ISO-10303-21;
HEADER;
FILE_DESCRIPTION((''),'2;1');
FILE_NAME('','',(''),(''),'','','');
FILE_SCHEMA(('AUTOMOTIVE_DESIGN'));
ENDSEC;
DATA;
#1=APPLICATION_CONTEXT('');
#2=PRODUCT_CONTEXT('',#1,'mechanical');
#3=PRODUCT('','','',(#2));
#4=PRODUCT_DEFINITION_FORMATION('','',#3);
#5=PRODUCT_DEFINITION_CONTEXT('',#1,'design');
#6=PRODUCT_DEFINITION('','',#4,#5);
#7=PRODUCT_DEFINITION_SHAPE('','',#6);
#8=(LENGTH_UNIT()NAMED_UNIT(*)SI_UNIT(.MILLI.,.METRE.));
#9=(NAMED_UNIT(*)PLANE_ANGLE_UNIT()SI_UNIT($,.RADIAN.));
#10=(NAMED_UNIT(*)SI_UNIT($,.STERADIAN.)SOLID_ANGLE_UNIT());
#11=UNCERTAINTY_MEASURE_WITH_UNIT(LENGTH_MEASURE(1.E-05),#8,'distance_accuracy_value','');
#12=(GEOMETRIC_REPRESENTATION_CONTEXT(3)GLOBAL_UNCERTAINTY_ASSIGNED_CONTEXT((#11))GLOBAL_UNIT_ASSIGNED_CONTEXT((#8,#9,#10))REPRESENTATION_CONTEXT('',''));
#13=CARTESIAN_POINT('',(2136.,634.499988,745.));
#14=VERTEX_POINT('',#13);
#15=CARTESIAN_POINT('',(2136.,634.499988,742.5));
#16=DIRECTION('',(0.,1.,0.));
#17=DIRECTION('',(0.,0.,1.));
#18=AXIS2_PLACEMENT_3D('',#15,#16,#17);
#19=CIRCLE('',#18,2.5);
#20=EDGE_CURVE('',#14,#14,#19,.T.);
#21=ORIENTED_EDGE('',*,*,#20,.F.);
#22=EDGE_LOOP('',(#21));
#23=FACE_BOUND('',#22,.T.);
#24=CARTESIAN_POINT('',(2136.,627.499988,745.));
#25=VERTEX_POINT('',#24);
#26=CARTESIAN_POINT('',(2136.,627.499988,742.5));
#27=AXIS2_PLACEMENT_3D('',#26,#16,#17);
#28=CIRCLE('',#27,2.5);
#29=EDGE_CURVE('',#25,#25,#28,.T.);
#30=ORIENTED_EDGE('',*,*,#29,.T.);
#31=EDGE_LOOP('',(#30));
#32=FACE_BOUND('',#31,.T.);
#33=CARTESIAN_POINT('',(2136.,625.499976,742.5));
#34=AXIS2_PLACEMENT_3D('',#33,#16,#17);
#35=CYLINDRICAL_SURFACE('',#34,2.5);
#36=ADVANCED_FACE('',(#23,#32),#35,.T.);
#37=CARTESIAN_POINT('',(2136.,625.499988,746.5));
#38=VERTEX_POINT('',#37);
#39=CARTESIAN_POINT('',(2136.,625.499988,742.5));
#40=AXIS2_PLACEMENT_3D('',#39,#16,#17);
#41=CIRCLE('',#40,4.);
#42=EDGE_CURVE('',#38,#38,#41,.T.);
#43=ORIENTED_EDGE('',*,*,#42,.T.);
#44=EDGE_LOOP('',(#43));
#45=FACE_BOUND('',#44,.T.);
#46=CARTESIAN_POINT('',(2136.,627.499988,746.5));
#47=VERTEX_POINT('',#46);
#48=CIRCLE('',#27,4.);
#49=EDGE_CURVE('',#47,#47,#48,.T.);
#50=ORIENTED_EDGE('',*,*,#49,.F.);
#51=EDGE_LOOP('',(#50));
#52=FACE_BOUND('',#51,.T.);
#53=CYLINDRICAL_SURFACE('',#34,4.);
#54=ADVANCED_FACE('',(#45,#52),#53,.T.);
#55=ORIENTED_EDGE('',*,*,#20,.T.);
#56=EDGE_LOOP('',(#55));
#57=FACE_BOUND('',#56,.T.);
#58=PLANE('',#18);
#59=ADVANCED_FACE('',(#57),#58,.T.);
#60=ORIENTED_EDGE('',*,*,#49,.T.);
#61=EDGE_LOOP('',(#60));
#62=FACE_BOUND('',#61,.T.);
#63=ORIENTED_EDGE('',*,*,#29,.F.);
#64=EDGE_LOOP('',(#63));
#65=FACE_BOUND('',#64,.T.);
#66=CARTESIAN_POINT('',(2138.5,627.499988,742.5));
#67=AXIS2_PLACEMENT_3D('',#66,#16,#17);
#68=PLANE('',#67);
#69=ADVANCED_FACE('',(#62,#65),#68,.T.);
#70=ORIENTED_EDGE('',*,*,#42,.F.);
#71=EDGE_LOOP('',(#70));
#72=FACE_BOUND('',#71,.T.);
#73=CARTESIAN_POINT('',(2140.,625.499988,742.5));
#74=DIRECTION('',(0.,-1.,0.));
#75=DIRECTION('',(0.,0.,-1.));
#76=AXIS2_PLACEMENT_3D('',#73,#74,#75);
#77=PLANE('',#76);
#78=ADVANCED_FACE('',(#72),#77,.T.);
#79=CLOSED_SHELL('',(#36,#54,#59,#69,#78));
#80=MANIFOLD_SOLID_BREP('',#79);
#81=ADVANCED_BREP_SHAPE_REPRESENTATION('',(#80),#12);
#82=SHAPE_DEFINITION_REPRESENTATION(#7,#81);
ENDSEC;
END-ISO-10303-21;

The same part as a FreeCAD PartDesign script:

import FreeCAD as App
import Part
import Sketcher


def add_polygon(sketch, points):
    """Adds a closed chain of lines whose ends are joined by coincident constraints."""
    first, n = sketch.GeometryCount, len(points)
    for a, b in zip(points, points[1:] + points[:1]):
        sketch.addGeometry(Part.LineSegment(App.Vector(*a, 0), App.Vector(*b, 0)), False)
    for i in range(n):
        sketch.addConstraint(Sketcher.Constraint("Coincident", first + i, 2, first + (i + 1) % n, 1))

doc = App.newDocument("Part")
body = doc.addObject("PartDesign::Body", "Body")

# Sketch on XY plane
sketch1 = body.newObject("Sketcher::SketchObject", "Sketch")
sketch1.AttachmentSupport = (doc.getObject("XY_Plane"), [""])
sketch1.MapMode = "FlatFace"
sketch1.AttachmentOffset = App.Placement(App.Vector(0, 0, 742.5), App.Rotation())
add_polygon(sketch1, [(2140, 625.499988), (2136, 625.499988), (2136, 634.499988), (2138.5, 634.499988), (2138.5, 627.499988), (2140, 627.499988)])  # lines 0-5
sketch1.addGeometry(Part.LineSegment(App.Vector(2136, 625.499988, 0), App.Vector(2136, 634.499988, 0)), True)  # axis
sketch1.addConstraint([
    Sketcher.Constraint("Horizontal", 0),
    Sketcher.Constraint("Vertical", 1),
    Sketcher.Constraint("Horizontal", 2),
    Sketcher.Constraint("Vertical", 3),
    Sketcher.Constraint("Horizontal", 4),
    Sketcher.Constraint("Vertical", 5),
    Sketcher.Constraint("Vertical", 6),
    Sketcher.Constraint("Coincident", 6, 1, 0, 2),
    Sketcher.Constraint("Horizontal", 2, 2, 6, 2),
    Sketcher.Constraint("DistanceX", 0, 2, 0, 1, 4.0),
    Sketcher.Constraint("DistanceY", 1, 1, 1, 2, 9.0),
    Sketcher.Constraint("DistanceY", 3, 2, 3, 1, 7.0),
    Sketcher.Constraint("DistanceX", 2, 1, 2, 2, 2.5),
    Sketcher.Constraint("DistanceX", -1, 1, 0, 2, 2136.0),
    Sketcher.Constraint("DistanceY", -1, 1, 0, 2, 625.499988),
])
revolution = body.newObject("PartDesign::Revolution", "Revolution")
revolution.Profile = sketch1
revolution.ReferenceAxis = (sketch1, ["Axis0"])
revolution.Angle = 360

doc.recompute()
